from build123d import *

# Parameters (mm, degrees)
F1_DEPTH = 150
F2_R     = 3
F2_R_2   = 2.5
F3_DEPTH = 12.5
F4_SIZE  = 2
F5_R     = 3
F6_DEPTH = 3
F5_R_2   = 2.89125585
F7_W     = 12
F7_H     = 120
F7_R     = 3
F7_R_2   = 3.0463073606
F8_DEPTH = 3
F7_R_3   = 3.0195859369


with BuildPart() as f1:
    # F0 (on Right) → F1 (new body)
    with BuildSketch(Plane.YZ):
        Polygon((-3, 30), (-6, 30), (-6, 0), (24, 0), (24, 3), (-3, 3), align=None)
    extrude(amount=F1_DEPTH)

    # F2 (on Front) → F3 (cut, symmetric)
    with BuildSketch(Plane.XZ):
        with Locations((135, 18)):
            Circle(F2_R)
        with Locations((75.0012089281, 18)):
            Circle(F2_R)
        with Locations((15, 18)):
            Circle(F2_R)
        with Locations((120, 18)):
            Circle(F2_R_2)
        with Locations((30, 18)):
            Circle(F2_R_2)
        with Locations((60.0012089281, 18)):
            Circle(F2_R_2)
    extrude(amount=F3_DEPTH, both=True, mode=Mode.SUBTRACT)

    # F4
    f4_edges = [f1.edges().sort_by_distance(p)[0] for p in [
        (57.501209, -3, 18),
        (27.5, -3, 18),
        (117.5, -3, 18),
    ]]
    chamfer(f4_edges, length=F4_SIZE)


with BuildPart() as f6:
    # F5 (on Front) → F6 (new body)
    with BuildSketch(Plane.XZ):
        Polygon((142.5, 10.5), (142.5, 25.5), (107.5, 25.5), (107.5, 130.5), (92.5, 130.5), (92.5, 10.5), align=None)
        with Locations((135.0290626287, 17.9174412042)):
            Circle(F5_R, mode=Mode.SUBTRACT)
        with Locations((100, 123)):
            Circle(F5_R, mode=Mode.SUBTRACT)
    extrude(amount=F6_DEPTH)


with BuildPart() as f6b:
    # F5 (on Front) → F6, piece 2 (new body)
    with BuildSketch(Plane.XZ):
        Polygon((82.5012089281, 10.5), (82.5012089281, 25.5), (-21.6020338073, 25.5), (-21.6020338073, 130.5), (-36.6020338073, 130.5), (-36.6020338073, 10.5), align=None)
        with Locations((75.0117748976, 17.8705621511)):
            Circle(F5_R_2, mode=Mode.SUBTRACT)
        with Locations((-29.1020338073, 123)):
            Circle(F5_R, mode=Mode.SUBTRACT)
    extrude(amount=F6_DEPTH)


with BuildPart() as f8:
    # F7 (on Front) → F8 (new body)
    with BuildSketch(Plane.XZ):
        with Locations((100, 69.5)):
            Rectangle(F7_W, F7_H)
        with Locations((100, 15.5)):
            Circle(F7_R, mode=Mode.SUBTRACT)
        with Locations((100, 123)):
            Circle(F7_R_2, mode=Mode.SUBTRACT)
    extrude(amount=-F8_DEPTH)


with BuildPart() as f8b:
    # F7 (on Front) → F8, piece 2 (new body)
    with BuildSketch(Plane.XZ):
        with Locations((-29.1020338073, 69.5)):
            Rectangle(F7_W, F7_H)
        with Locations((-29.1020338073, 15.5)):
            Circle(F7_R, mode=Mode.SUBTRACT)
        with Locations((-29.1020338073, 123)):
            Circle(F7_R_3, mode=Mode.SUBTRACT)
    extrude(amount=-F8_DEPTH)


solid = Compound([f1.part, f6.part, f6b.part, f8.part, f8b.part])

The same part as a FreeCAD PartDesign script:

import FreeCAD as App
import Part
import Sketcher

V = App.Vector
Q = App.Units.Quantity


def edges_at(feature, points):
    """Names of the edges that pass closest to the given points."""
    edges = feature.Shape.Edges
    near = lambda p: min(range(len(edges)), key=lambda i: edges[i].distToShape(Part.Vertex(*p))[0])
    return sorted({f"Edge{near(p) + 1}" for p in points})

doc = App.newDocument("Part")
body = doc.addObject("PartDesign::Body", "Body")

sketch1 = doc.addObject("Sketcher::SketchObject", "Sketch")
body.addObject(sketch1)
sketch1.AttachmentSupport = (doc.YZ_Plane, [""])
sketch1.MapMode = "FlatFace"
sketch1.addGeometry([
    Part.LineSegment(V(-3, 30, 0), V(-6, 30, 0)),
    Part.LineSegment(V(-6, 30, 0), V(-6, 0, 0)),
    Part.LineSegment(V(-6, 0, 0), V(24, 0, 0)),
    Part.LineSegment(V(24, 0, 0), V(24, 3, 0)),
    Part.LineSegment(V(24, 3, 0), V(-3, 3, 0)),
    Part.LineSegment(V(-3, 3, 0), V(-3, 30, 0)),
], False)
sketch1.addConstraint([
    Sketcher.Constraint("Coincident", 0, 2, 1, 1),
    Sketcher.Constraint("Coincident", 1, 2, 2, 1),
    Sketcher.Constraint("Coincident", 2, 2, 3, 1),
    Sketcher.Constraint("Coincident", 3, 2, 4, 1),
    Sketcher.Constraint("Coincident", 4, 2, 5, 1),
    Sketcher.Constraint("Coincident", 5, 2, 0, 1),
    Sketcher.Constraint("Horizontal", 0),
    Sketcher.Constraint("Vertical", 1),
    Sketcher.Constraint("Horizontal", 2),
    Sketcher.Constraint("Vertical", 3),
    Sketcher.Constraint("Horizontal", 4),
    Sketcher.Constraint("Vertical", 5),
    Sketcher.Constraint("PointOnObject", 1, 2, -1),
    Sketcher.Constraint("Equal", 2, 1),
    Sketcher.Constraint("Equal", 0, 3),
    Sketcher.Constraint("DistanceX", 0, 2, 0, 1, Q("3 mm")),
    Sketcher.Constraint("DistanceX", 2, 1, 2, 2, Q("30 mm")),
    Sketcher.Constraint("DistanceX", 0, 2, -1, 1, Q("6 mm")),
])
pad1 = doc.addObject("PartDesign::Pad", "Pad")
body.addObject(pad1)
pad1.Profile = sketch1
pad1.Length = 150

sketch2 = doc.addObject("Sketcher::SketchObject", "Sketch001")
body.addObject(sketch2)
sketch2.AttachmentSupport = (doc.XZ_Plane, [""])
sketch2.MapMode = "FlatFace"
sketch2.addGeometry([
    Part.Circle(V(135, 18, 0), V(0, 0, 1), 3),
    Part.Circle(V(75, 18, 0), V(0, 0, 1), 3),
    Part.Circle(V(15, 18, 0), V(0, 0, 1), 3),
    Part.Circle(V(120, 18, 0), V(0, 0, 1), 2.5),
    Part.Circle(V(30, 18, 0), V(0, 0, 1), 2.5),
    Part.Circle(V(60, 18, 0), V(0, 0, 1), 2.5),
], False)
sketch2.addConstraint([
    Sketcher.Constraint("Equal", 0, 1),
    Sketcher.Constraint("Equal", 1, 2),
    Sketcher.Constraint("Equal", 3, 4),
    Sketcher.Constraint("Equal", 4, 5),
    Sketcher.Constraint("Horizontal", 0, 3, 1, 3),
    Sketcher.Constraint("Horizontal", 1, 3, 2, 3),
    Sketcher.Constraint("Horizontal", 2, 3, 3, 3),
    Sketcher.Constraint("Horizontal", 3, 3, 4, 3),
    Sketcher.Constraint("Horizontal", 4, 3, 5, 3),
    Sketcher.Constraint("Diameter", 0, Q("6 mm")),
    Sketcher.Constraint("Diameter", 3, Q("5 mm")),
    Sketcher.Constraint("DistanceX", -1, 1, 0, 3, Q("135 mm")),
    Sketcher.Constraint("DistanceY", -1, 1, 0, 3, Q("18 mm")),
    Sketcher.Constraint("DistanceX", -1, 1, 2, 3, Q("15 mm")),
    Sketcher.Constraint("DistanceX", -1, 1, 3, 3, Q("120 mm")),
    Sketcher.Constraint("DistanceX", -1, 1, 4, 3, Q("30 mm")),
    Sketcher.Constraint("DistanceX", 5, 3, 1, 3, Q("15 mm")),
    Sketcher.Constraint("DistanceX", -1, 1, 1, 3, Q("75.001209 mm")),
])
pocket1 = doc.addObject("PartDesign::Pocket", "Pocket")
body.addObject(pocket1)
pocket1.Profile = sketch2
pocket1.Length = 25
pocket1.Midplane = True
doc.recompute()

chamfer = doc.addObject("PartDesign::Chamfer", "Chamfer")
body.addObject(chamfer)
chamfer.Base = (pocket1, edges_at(pocket1, [(57.501, -3, 18), (27.5, -3, 18), (117.5, -3, 18)]))
chamfer.Size = 2
body2 = doc.addObject("PartDesign::Body", "Body001")

sketch3 = doc.addObject("Sketcher::SketchObject", "Sketch002")
body2.addObject(sketch3)
sketch3.AttachmentSupport = (doc.getObject("XZ_Plane001"), [""])
sketch3.MapMode = "FlatFace"
sketch3.addGeometry([
    Part.LineSegment(V(142.5, 10.5, 0), V(142.5, 25.5, 0)),
    Part.LineSegment(V(142.5, 25.5, 0), V(107.5, 25.5, 0)),
    Part.LineSegment(V(107.5, 25.5, 0), V(107.5, 130.5, 0)),
    Part.LineSegment(V(107.5, 130.5, 0), V(92.5, 130.5, 0)),
    Part.LineSegment(V(92.5, 130.5, 0), V(92.5, 10.5, 0)),
    Part.LineSegment(V(92.5, 10.5, 0), V(142.5, 10.5, 0)),
    Part.Circle(V(135, 17.9, 0), V(0, 0, 1), 3),
    Part.Circle(V(100, 123, 0), V(0, 0, 1), 3),
], False)
sketch3.addConstraint([
    Sketcher.Constraint("Coincident", 0, 2, 1, 1),
    Sketcher.Constraint("Coincident", 1, 2, 2, 1),
    Sketcher.Constraint("Coincident", 2, 2, 3, 1),
    Sketcher.Constraint("Coincident", 3, 2, 4, 1),
    Sketcher.Constraint("Coincident", 4, 2, 5, 1),
    Sketcher.Constraint("Coincident", 5, 2, 0, 1),
    Sketcher.Constraint("Vertical", 0),
    Sketcher.Constraint("Horizontal", 1),
    Sketcher.Constraint("Vertical", 2),
    Sketcher.Constraint("Horizontal", 3),
    Sketcher.Constraint("Vertical", 4),
    Sketcher.Constraint("Horizontal", 5),
    Sketcher.Constraint("Equal", 6, 7),
    Sketcher.Constraint("Equal", 3, 0),
    Sketcher.Constraint("Diameter", 6, Q("6 mm")),
    Sketcher.Constraint("DistanceX", 1, 2, 1, 1, Q("35 mm")),
    Sketcher.Constraint("DistanceX", 3, 2, 3, 1, Q("15 mm")),
    Sketcher.Constraint("DistanceY", 2, 1, 2, 2, Q("105 mm")),
    Sketcher.Constraint("DistanceX", -1, 1, 7, 3, Q("100 mm")),
    Sketcher.Constraint("DistanceY", -1, 1, 7, 3, Q("123 mm")),
    Sketcher.Constraint("DistanceX", -1, 1, 0, 2, Q("142.5 mm")),
    Sketcher.Constraint("DistanceY", -1, 1, 0, 2, Q("25.5 mm")),
    Sketcher.Constraint("DistanceY", -1, 1, 6, 3, Q("17.917441 mm")),
    Sketcher.Constraint("DistanceX", -1, 1, 6, 3, Q("135.029063 mm")),
])
pad2 = doc.addObject("PartDesign::Pad", "Pad001")
body2.addObject(pad2)
pad2.Profile = sketch3
pad2.Length = 3
body3 = doc.addObject("PartDesign::Body", "Body002")

sketch4 = doc.addObject("Sketcher::SketchObject", "Sketch003")
body3.addObject(sketch4)
sketch4.AttachmentSupport = (doc.getObject("XZ_Plane002"), [""])
sketch4.MapMode = "FlatFace"
sketch4.addGeometry([
    Part.LineSegment(V(82.5, 10.5, 0), V(82.5, 25.5, 0)),
    Part.LineSegment(V(82.5, 25.5, 0), V(-21.6, 25.5, 0)),
    Part.LineSegment(V(-21.6, 25.5, 0), V(-21.6, 130.5, 0)),
    Part.LineSegment(V(-21.6, 130.5, 0), V(-36.6, 130.5, 0)),
    Part.LineSegment(V(-36.6, 130.5, 0), V(-36.6, 10.5, 0)),
    Part.LineSegment(V(-36.6, 10.5, 0), V(82.5, 10.5, 0)),
    Part.Circle(V(75, 17.9, 0), V(0, 0, 1), 2.9),
    Part.Circle(V(-29.1, 123, 0), V(0, 0, 1), 3),
], False)
sketch4.addConstraint([
    Sketcher.Constraint("Coincident", 0, 2, 1, 1),
    Sketcher.Constraint("Coincident", 1, 2, 2, 1),
    Sketcher.Constraint("Coincident", 2, 2, 3, 1),
    Sketcher.Constraint("Coincident", 3, 2, 4, 1),
    Sketcher.Constraint("Coincident", 4, 2, 5, 1),
    Sketcher.Constraint("Coincident", 5, 2, 0, 1),
    Sketcher.Constraint("Vertical", 0),
    Sketcher.Constraint("Horizontal", 1),
    Sketcher.Constraint("Vertical", 2),
    Sketcher.Constraint("Horizontal", 3),
    Sketcher.Constraint("Vertical", 4),
    Sketcher.Constraint("Horizontal", 5),
    Sketcher.Constraint("Equal", 3, 0),
    Sketcher.Constraint("Diameter", 7, Q("6 mm")),
    Sketcher.Constraint("DistanceX", 3, 2, 3, 1, Q("15 mm")),
    Sketcher.Constraint("DistanceY", 2, 1, 2, 2, Q("105 mm")),
    Sketcher.Constraint("DistanceY", -1, 1, 7, 3, Q("123 mm")),
    Sketcher.Constraint("DistanceY", -1, 1, 0, 2, Q("25.5 mm")),
    Sketcher.Constraint("DistanceX", 7, 3, 1, 2, Q("7.5 mm")),
    Sketcher.Constraint("Diameter", 6, Q("5.782512 mm")),
    Sketcher.Constraint("DistanceX", 1, 2, 1, 1, Q("104.103243 mm")),
    Sketcher.Constraint("DistanceX", -1, 1, 0, 2, Q("82.501209 mm")),
    Sketcher.Constraint("DistanceX", 7, 3, 6, 3, Q("104.113809 mm")),
    Sketcher.Constraint("DistanceY", -1, 1, 6, 3, Q("17.870562 mm")),
])
pad3 = doc.addObject("PartDesign::Pad", "Pad002")
body3.addObject(pad3)
pad3.Profile = sketch4
pad3.Length = 3
body4 = doc.addObject("PartDesign::Body", "Body003")

sketch5 = doc.addObject("Sketcher::SketchObject", "Sketch004")
body4.addObject(sketch5)
sketch5.AttachmentSupport = (doc.getObject("XZ_Plane003"), [""])
sketch5.MapMode = "FlatFace"
sketch5.addGeometry([
    Part.LineSegment(V(94, 129.5, 0), V(94, 9.5, 0)),
    Part.LineSegment(V(94, 9.5, 0), V(106, 9.5, 0)),
    Part.LineSegment(V(106, 9.5, 0), V(106, 129.5, 0)),
    Part.LineSegment(V(106, 129.5, 0), V(94, 129.5, 0)),
    Part.Circle(V(100, 15.5, 0), V(0, 0, 1), 3),
    Part.Circle(V(100, 123, 0), V(0, 0, 1), 3),
], False)
sketch5.addConstraint([
    Sketcher.Constraint("Coincident", 0, 2, 1, 1),
    Sketcher.Constraint("Coincident", 1, 2, 2, 1),
    Sketcher.Constraint("Coincident", 2, 2, 3, 1),
    Sketcher.Constraint("Coincident", 3, 2, 0, 1),
    Sketcher.Constraint("Vertical", 0),
    Sketcher.Constraint("Horizontal", 1),
    Sketcher.Constraint("Vertical", 2),
    Sketcher.Constraint("Horizontal", 3),
    Sketcher.Constraint("Vertical", 4, 3, 5, 3),
    Sketcher.Constraint("Diameter", 4, Q("6 mm")),
    Sketcher.Constraint("DistanceX", 1, 1, 1, 2, Q("12 mm")),
    Sketcher.Constraint("DistanceY", 0, 2, 0, 1, Q("120 mm")),
    Sketcher.Constraint("DistanceX", -1, 1, 4, 3, Q("100 mm")),
    Sketcher.Constraint("DistanceY", -1, 1, 5, 3, Q("123 mm")),
    Sketcher.Constraint("DistanceX", -1, 1, 0, 2, Q("94 mm")),
    Sketcher.Constraint("DistanceY", 0, 2, 4, 3, Q("6 mm")),
    Sketcher.Constraint("DistanceY", -1, 1, 4, 3, Q("15.5 mm")),
    Sketcher.Constraint("Diameter", 5, Q("6.092615 mm")),
])
pad4 = doc.addObject("PartDesign::Pad", "Pad003")
body4.addObject(pad4)
pad4.Profile = sketch5
pad4.Length = 3
pad4.Reversed = True
body5 = doc.addObject("PartDesign::Body", "Body004")

sketch6 = doc.addObject("Sketcher::SketchObject", "Sketch005")
body5.addObject(sketch6)
sketch6.AttachmentSupport = (doc.getObject("XZ_Plane004"), [""])
sketch6.MapMode = "FlatFace"
sketch6.addGeometry([
    Part.LineSegment(V(-35.1, 129.5, 0), V(-35.1, 9.5, 0)),
    Part.LineSegment(V(-35.1, 9.5, 0), V(-23.1, 9.5, 0)),
    Part.LineSegment(V(-23.1, 9.5, 0), V(-23.1, 129.5, 0)),
    Part.LineSegment(V(-23.1, 129.5, 0), V(-35.1, 129.5, 0)),
    Part.Circle(V(-29.1, 15.5, 0), V(0, 0, 1), 3),
    Part.Circle(V(-29.1, 123, 0), V(0, 0, 1), 3),
], False)
sketch6.addConstraint([
    Sketcher.Constraint("Coincident", 0, 2, 1, 1),
    Sketcher.Constraint("Coincident", 1, 2, 2, 1),
    Sketcher.Constraint("Coincident", 2, 2, 3, 1),
    Sketcher.Constraint("Coincident", 3, 2, 0, 1),
    Sketcher.Constraint("Vertical", 0),
    Sketcher.Constraint("Horizontal", 1),
    Sketcher.Constraint("Vertical", 2),
    Sketcher.Constraint("Horizontal", 3),
    Sketcher.Constraint("Vertical", 4, 3, 5, 3),
    Sketcher.Constraint("Diameter", 4, Q("6 mm")),
    Sketcher.Constraint("DistanceX", 1, 1, 1, 2, Q("12 mm")),
    Sketcher.Constraint("DistanceY", 0, 2, 0, 1, Q("120 mm")),
    Sketcher.Constraint("DistanceY", -1, 1, 5, 3, Q("123 mm")),
    Sketcher.Constraint("DistanceX", 0, 2, 4, 3, Q("6 mm")),
    Sketcher.Constraint("DistanceY", 0, 2, 4, 3, Q("6 mm")),
    Sketcher.Constraint("DistanceY", -1, 1, 4, 3, Q("15.5 mm")),
    Sketcher.Constraint("Diameter", 5, Q("6.039172 mm")),
    Sketcher.Constraint("DistanceX", 4, 3, -1, 1, Q("29.102034 mm")),
])
pad5 = doc.addObject("PartDesign::Pad", "Pad004")
body5.addObject(pad5)
pad5.Profile = sketch6
pad5.Length = 3
pad5.Reversed = True

doc.recompute()
